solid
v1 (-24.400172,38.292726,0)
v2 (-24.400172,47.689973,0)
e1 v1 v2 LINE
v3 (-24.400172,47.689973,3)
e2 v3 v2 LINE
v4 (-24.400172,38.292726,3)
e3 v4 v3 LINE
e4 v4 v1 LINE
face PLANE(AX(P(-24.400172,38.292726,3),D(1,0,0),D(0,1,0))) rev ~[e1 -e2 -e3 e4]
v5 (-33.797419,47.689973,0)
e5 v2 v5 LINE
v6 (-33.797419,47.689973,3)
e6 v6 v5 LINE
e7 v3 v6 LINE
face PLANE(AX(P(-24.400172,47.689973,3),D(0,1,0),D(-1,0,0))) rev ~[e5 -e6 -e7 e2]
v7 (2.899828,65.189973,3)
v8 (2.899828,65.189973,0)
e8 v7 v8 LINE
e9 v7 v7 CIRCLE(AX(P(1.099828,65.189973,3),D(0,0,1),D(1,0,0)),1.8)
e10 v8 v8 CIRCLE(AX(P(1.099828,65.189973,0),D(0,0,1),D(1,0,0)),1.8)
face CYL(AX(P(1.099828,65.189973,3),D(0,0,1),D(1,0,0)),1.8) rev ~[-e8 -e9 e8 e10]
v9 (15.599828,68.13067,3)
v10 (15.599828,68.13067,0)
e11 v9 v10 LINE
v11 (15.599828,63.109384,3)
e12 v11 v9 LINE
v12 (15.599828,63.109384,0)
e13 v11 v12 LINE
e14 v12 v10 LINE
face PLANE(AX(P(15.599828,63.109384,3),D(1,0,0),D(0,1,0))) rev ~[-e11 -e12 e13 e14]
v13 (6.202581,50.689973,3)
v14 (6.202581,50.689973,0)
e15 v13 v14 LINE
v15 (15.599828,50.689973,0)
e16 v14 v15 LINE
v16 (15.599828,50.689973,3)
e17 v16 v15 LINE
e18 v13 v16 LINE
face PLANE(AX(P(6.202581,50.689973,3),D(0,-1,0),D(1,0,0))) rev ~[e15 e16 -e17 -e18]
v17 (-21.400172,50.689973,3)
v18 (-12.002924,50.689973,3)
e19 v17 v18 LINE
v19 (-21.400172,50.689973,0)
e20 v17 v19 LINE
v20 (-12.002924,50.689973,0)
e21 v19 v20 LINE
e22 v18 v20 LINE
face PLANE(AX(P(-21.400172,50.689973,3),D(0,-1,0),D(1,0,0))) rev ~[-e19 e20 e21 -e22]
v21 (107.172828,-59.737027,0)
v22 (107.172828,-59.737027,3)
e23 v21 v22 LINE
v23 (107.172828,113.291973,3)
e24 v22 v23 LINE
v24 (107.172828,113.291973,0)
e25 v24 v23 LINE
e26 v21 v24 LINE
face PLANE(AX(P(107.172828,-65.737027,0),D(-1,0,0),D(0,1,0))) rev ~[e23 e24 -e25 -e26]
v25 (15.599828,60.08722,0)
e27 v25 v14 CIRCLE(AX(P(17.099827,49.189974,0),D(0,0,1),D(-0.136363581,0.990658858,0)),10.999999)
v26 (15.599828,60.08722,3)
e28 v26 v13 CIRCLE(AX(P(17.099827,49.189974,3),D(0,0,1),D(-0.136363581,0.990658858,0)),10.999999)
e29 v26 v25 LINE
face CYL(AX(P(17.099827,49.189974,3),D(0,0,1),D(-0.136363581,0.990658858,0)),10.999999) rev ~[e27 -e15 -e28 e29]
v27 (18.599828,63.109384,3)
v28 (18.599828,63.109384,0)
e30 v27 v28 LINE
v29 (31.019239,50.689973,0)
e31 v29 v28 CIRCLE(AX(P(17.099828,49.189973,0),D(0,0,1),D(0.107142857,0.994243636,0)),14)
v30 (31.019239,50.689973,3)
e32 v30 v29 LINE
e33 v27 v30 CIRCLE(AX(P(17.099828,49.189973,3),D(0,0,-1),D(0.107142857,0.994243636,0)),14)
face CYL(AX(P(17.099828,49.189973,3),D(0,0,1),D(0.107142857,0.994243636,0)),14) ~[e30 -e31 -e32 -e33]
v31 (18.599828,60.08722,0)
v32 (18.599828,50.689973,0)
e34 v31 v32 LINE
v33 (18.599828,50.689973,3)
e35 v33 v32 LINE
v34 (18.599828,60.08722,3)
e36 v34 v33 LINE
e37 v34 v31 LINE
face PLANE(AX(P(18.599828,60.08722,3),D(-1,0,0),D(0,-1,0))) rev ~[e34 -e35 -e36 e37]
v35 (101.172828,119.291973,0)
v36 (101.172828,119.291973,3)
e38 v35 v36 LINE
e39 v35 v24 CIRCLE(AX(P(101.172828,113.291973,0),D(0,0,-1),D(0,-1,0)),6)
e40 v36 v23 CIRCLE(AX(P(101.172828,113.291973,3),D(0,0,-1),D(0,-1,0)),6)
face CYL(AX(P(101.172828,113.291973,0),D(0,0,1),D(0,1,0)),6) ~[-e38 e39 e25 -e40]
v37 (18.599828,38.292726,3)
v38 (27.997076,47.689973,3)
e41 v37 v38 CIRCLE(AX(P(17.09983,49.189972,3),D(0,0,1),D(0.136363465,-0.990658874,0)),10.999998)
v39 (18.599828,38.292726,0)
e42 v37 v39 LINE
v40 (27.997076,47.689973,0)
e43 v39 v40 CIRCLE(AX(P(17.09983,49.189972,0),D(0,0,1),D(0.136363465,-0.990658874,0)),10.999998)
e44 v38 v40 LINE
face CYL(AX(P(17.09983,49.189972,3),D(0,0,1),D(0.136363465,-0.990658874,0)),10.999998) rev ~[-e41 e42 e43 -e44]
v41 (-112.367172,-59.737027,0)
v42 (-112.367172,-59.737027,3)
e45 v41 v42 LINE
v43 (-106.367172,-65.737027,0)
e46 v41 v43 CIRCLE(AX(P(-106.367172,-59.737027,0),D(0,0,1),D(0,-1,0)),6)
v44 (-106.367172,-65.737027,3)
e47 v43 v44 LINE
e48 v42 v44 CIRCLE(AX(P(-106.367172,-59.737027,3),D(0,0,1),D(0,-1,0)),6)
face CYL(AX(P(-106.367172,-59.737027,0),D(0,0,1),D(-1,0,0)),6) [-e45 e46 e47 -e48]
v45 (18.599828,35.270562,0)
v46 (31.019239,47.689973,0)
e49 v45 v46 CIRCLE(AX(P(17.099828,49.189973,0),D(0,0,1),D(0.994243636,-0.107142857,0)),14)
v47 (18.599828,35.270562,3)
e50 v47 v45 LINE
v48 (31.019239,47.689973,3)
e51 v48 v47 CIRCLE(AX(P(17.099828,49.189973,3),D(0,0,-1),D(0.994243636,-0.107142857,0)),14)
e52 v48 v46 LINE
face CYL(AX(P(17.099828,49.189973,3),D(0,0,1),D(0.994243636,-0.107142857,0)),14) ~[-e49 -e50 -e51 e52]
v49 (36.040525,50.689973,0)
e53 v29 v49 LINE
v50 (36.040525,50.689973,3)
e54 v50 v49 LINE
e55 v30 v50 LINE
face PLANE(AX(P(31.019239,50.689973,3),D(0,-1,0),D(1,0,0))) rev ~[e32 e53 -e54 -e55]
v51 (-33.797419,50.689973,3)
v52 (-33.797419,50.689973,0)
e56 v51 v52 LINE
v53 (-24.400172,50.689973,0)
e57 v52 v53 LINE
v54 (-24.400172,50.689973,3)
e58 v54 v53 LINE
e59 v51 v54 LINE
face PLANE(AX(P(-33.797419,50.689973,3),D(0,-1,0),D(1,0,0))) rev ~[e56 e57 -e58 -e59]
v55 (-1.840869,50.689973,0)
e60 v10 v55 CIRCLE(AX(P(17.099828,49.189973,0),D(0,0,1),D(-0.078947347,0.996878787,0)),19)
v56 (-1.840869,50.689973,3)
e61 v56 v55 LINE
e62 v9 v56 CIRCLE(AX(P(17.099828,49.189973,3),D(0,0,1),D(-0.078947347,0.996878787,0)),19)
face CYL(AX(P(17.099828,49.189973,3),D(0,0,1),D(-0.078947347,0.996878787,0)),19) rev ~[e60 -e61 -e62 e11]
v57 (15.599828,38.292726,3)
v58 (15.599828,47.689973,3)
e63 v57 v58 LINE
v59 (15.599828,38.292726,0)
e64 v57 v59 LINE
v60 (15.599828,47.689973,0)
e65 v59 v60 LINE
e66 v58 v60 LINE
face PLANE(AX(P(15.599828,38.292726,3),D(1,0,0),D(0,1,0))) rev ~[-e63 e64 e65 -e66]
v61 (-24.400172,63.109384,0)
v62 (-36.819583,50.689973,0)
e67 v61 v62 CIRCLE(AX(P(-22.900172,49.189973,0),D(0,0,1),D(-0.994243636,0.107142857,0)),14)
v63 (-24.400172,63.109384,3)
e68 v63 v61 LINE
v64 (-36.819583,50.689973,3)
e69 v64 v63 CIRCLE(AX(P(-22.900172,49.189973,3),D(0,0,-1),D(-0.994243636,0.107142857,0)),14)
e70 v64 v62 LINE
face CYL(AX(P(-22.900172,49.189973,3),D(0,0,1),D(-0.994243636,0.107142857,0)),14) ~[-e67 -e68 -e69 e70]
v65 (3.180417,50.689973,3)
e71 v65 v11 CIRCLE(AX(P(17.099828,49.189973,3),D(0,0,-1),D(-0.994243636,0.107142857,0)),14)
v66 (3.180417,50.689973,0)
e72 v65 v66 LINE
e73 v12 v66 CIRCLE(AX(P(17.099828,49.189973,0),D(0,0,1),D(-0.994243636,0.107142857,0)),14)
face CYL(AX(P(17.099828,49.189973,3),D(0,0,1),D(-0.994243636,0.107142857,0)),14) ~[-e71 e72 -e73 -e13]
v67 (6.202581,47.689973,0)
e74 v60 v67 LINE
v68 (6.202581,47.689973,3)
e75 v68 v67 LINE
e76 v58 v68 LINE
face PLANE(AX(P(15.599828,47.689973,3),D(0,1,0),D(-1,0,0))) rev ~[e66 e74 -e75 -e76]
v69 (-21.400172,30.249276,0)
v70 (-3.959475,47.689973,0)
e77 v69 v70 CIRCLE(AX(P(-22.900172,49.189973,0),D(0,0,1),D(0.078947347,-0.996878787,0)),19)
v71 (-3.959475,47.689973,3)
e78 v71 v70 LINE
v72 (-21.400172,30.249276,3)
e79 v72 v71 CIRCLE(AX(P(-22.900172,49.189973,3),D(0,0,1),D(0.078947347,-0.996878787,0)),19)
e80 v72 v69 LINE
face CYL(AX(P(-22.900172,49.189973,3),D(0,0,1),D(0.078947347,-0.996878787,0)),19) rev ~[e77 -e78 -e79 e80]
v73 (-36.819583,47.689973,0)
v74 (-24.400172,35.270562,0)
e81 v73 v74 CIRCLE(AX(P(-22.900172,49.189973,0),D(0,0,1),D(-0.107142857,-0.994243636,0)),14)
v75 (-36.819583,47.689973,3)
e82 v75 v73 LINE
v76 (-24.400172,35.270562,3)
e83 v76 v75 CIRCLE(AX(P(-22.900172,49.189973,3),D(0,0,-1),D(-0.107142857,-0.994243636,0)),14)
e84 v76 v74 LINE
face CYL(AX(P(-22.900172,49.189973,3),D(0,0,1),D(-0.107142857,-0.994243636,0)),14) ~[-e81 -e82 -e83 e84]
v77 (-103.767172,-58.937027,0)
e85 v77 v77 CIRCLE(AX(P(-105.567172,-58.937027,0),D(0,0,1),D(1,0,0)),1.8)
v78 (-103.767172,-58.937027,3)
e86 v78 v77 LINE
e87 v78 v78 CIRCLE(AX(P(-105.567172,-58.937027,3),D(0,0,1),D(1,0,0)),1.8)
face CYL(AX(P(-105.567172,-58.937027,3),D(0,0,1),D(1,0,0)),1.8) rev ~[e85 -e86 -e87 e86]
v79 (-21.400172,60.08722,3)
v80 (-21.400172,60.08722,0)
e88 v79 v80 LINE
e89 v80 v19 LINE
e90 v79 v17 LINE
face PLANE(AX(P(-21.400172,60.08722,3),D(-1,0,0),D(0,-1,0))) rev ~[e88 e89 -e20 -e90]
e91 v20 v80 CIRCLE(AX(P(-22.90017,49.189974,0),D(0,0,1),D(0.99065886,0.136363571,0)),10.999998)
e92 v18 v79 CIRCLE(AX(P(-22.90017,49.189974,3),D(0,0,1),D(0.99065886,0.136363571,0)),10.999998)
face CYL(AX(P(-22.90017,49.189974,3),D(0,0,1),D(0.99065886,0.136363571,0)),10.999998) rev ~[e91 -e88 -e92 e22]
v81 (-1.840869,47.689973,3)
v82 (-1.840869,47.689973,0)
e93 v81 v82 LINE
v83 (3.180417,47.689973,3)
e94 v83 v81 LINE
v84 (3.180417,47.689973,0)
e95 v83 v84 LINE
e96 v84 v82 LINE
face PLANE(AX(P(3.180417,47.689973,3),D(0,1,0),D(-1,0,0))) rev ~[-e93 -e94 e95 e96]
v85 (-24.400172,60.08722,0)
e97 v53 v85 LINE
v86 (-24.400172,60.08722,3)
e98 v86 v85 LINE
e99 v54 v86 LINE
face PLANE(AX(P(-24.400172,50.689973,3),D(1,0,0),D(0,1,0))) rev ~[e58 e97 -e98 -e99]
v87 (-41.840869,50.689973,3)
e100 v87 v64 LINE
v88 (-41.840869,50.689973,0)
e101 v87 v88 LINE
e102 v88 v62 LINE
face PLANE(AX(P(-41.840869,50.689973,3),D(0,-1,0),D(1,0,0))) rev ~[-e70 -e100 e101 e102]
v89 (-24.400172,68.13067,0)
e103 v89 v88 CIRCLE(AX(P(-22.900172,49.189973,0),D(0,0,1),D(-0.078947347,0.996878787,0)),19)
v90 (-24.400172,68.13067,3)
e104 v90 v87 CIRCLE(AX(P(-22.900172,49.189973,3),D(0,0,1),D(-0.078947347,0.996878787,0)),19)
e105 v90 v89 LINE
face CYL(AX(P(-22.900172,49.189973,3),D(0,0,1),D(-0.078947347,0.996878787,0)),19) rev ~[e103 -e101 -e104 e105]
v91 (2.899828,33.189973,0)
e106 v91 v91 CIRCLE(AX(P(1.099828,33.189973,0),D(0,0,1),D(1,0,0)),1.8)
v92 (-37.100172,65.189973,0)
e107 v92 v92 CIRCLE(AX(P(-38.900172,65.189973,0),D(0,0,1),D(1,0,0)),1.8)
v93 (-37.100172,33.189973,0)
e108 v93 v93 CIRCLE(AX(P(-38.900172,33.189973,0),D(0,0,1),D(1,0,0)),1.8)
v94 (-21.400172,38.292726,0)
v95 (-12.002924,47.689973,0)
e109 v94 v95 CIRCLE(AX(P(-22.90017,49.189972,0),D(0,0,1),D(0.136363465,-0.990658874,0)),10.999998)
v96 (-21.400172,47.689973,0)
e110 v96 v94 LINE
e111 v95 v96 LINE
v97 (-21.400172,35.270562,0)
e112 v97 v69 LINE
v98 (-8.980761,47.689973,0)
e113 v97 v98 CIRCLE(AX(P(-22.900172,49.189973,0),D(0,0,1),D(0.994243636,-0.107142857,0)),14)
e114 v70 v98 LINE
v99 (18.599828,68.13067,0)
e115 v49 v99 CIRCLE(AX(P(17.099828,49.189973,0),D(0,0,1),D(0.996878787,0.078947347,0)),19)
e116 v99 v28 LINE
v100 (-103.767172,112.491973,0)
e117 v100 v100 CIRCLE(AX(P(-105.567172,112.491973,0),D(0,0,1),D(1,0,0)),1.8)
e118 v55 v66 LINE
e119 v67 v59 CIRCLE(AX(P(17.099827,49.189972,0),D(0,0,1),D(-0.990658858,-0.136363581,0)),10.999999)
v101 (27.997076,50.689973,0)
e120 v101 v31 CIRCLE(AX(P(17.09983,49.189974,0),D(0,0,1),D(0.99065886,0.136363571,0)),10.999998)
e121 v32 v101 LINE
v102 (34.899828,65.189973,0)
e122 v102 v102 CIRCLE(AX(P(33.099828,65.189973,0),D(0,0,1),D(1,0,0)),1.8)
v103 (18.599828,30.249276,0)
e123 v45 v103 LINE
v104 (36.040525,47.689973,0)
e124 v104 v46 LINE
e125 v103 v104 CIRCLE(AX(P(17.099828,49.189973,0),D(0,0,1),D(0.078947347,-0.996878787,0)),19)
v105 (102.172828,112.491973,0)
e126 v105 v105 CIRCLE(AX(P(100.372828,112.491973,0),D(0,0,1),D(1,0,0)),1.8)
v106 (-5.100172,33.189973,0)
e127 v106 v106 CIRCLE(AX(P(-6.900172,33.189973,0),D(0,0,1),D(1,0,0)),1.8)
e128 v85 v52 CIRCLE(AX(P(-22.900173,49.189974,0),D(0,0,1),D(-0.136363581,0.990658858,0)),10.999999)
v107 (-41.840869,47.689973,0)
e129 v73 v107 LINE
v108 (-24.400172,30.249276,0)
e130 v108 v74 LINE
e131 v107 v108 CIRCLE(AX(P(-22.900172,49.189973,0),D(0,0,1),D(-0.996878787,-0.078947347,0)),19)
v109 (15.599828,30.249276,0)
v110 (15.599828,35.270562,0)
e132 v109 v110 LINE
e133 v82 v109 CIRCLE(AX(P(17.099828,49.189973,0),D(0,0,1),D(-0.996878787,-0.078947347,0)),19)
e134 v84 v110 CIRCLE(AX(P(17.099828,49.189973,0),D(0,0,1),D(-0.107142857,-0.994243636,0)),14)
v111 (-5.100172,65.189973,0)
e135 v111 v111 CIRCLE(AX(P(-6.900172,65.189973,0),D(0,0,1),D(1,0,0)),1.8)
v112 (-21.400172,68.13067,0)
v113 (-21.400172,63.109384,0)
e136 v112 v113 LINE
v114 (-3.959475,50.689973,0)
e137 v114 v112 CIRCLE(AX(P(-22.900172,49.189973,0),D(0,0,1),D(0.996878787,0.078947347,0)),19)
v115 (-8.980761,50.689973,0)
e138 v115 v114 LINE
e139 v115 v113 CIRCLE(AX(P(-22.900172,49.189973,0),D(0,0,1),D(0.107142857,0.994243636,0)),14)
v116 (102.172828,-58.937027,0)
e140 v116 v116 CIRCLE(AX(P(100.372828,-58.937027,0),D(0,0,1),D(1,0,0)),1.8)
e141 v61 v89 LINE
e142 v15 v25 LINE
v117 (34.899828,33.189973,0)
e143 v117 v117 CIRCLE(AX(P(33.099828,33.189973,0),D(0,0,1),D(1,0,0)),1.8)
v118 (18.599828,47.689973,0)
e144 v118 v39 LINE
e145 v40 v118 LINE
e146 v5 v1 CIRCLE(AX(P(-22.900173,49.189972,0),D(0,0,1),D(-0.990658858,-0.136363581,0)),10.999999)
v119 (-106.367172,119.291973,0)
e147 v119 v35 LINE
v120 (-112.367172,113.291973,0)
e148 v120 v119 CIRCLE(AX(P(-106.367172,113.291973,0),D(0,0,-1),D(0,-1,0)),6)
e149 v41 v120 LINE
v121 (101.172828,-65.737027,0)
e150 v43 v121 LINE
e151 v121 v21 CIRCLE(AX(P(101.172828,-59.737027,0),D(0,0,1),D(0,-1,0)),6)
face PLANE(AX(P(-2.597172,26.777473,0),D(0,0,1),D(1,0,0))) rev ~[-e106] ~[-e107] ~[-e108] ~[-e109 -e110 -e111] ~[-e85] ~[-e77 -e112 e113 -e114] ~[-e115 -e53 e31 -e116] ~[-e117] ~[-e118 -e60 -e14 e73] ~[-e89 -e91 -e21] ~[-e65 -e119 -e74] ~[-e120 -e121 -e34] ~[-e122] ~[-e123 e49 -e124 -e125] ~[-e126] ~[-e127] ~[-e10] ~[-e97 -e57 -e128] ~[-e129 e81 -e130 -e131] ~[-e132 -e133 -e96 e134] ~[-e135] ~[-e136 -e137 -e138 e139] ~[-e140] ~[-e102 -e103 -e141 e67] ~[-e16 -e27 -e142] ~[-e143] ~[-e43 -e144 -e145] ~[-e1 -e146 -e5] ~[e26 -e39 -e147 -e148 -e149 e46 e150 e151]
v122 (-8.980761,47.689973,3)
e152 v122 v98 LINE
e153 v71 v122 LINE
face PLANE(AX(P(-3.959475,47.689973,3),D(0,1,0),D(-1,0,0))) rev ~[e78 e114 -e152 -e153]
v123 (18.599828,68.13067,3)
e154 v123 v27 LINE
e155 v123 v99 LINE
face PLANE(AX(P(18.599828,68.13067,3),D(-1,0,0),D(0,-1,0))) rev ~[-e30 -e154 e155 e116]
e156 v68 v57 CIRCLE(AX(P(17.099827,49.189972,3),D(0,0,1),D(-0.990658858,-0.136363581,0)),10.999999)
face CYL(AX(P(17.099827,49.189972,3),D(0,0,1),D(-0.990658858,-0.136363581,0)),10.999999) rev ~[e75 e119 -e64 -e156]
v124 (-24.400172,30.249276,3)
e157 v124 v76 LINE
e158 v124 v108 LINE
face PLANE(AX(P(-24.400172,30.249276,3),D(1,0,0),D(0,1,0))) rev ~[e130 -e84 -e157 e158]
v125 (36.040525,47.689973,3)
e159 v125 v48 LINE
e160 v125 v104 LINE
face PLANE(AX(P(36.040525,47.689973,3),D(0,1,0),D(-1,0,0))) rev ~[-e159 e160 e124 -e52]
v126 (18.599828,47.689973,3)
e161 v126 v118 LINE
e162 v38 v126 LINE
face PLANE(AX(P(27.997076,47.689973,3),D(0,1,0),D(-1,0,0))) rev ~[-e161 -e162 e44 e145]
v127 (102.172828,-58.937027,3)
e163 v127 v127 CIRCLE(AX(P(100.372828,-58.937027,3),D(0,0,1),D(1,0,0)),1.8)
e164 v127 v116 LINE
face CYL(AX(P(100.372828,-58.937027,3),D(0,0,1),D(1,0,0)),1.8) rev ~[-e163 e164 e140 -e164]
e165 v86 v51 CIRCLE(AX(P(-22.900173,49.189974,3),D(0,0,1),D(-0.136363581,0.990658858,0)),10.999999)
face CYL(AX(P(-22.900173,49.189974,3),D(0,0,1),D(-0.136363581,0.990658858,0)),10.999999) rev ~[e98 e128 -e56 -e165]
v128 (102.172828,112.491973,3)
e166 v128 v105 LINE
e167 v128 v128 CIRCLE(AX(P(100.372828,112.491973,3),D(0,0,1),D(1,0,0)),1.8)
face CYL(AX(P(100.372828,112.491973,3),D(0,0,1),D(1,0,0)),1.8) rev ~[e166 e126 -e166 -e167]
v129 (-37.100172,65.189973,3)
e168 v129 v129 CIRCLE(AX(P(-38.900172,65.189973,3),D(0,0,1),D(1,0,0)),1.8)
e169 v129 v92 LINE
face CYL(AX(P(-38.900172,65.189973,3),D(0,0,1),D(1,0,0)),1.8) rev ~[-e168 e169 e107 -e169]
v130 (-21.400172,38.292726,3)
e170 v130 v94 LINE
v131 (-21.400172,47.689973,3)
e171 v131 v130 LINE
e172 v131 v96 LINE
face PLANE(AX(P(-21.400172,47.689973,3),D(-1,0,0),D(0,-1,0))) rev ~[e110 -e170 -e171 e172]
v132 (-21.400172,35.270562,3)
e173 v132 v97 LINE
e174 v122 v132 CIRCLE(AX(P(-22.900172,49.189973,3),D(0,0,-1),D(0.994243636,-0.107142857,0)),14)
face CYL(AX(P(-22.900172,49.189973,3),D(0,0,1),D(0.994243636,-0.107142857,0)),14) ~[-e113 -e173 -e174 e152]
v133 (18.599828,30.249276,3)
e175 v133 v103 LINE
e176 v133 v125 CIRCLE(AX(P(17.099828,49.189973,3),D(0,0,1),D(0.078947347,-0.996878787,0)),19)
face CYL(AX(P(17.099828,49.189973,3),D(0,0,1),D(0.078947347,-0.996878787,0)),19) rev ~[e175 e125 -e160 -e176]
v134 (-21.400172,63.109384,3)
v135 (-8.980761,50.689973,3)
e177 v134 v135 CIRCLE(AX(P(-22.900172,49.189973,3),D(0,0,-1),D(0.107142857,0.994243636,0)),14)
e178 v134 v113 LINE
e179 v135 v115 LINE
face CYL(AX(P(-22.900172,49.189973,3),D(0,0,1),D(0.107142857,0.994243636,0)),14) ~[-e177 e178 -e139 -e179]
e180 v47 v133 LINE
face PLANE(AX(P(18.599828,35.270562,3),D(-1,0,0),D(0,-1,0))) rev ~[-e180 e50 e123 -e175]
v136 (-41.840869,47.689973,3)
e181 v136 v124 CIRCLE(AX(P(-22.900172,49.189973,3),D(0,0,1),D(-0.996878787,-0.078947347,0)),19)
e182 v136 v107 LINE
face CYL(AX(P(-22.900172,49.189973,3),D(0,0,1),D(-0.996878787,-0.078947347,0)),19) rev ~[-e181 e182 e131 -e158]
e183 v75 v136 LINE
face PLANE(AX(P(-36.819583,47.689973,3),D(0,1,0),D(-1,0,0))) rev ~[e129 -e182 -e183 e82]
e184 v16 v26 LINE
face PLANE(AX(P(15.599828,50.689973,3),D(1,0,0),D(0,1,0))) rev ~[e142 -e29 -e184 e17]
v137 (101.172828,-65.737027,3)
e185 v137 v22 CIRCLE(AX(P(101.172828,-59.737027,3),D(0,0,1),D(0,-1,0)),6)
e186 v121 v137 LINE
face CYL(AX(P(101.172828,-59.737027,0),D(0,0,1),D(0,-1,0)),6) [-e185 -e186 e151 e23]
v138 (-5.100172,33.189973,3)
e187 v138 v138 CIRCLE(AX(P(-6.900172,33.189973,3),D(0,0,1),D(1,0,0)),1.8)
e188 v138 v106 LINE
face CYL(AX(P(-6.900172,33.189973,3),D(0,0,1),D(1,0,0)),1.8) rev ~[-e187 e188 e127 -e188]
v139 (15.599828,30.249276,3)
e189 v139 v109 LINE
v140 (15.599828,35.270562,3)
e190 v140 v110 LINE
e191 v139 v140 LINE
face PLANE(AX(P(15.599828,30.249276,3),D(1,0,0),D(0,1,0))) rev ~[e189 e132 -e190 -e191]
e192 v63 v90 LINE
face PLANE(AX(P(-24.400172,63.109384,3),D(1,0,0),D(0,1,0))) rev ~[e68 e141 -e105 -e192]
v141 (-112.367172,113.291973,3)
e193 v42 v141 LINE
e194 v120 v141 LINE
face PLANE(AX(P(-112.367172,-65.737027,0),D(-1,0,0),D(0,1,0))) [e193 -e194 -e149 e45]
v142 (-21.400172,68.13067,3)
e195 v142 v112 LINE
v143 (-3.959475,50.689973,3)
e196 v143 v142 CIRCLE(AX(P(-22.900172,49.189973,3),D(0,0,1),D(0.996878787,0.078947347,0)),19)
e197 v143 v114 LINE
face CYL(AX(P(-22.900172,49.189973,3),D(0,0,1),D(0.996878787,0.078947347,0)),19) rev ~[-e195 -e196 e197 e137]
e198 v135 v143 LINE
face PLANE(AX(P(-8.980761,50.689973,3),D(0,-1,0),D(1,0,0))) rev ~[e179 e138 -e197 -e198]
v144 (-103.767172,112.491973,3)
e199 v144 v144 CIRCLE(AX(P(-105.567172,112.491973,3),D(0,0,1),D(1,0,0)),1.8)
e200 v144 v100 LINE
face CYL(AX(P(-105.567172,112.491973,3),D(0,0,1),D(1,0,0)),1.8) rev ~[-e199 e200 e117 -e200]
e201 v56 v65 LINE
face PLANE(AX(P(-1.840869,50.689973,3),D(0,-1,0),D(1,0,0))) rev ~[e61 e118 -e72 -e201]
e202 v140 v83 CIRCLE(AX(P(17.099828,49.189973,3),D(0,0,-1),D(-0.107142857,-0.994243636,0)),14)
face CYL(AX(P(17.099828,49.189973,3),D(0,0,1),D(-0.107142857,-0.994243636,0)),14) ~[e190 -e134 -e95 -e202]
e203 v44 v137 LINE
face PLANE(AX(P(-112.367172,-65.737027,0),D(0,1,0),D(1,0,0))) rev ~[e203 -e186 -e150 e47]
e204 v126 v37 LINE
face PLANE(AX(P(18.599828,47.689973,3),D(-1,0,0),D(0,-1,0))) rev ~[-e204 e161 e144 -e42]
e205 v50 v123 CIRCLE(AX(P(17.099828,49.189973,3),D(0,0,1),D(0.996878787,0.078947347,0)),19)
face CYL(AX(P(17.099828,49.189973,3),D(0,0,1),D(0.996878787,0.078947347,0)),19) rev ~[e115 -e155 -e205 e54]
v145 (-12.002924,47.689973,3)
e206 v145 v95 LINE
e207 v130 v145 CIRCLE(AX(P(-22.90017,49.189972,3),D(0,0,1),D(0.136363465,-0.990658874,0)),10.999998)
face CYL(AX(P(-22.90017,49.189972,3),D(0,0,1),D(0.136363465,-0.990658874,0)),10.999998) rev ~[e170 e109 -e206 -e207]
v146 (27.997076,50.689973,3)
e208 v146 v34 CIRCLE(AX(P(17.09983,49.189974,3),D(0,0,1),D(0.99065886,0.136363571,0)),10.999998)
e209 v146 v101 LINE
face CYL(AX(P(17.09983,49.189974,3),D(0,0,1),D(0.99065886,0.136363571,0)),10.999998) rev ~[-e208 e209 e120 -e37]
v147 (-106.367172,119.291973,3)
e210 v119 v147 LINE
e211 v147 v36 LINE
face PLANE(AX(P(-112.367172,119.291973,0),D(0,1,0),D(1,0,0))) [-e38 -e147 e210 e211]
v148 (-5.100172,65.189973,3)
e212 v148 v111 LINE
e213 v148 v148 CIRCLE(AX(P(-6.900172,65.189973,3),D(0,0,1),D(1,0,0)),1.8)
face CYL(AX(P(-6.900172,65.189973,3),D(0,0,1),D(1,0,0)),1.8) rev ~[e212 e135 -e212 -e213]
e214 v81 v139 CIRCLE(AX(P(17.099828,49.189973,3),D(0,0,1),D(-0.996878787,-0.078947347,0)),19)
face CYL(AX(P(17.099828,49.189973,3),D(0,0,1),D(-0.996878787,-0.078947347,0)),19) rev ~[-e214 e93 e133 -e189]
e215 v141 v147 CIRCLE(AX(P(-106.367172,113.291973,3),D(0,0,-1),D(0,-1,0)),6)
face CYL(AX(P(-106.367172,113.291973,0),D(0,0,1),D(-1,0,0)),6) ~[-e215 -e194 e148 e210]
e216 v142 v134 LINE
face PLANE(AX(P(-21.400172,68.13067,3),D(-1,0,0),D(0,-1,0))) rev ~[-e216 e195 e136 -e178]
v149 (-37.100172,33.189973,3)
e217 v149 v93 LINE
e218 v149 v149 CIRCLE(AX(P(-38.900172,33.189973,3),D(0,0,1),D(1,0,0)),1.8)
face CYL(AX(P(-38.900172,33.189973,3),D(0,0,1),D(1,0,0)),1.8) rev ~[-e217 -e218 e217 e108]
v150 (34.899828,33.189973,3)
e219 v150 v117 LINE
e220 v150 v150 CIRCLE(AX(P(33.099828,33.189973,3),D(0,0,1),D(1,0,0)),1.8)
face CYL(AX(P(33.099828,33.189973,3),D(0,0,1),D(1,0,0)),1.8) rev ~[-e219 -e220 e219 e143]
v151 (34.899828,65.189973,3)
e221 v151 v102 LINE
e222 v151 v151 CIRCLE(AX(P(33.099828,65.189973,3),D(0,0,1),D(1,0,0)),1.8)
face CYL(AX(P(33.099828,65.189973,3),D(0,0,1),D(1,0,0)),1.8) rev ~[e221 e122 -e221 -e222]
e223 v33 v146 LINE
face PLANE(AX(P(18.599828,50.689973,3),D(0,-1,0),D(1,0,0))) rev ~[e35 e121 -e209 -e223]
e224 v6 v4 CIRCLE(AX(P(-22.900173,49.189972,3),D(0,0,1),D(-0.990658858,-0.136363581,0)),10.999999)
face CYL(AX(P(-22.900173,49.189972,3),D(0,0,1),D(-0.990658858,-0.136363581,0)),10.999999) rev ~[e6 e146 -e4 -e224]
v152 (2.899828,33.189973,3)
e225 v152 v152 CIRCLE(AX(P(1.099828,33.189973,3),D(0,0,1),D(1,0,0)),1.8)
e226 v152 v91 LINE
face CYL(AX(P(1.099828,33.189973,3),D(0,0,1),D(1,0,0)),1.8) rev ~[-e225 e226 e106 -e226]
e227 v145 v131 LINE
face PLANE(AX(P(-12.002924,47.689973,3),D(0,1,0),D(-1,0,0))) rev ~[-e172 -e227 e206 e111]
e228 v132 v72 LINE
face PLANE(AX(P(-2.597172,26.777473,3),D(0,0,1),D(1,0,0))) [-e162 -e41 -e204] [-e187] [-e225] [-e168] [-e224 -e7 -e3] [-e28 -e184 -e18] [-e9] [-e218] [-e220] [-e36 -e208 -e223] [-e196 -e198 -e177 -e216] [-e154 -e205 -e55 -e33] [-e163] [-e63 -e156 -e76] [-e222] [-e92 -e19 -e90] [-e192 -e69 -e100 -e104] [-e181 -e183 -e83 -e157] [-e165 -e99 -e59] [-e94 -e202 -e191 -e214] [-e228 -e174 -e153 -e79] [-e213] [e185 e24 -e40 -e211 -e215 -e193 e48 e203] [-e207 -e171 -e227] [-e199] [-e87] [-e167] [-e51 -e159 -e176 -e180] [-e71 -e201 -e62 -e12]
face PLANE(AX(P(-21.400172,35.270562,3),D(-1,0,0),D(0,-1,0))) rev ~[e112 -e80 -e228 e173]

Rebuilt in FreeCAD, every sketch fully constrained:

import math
import FreeCAD as App
import Part
import Sketcher
Q = App.Units.Quantity


def edges_at(feature, points):
    """Names of the edges that pass closest to the given points."""
    edges = feature.Shape.Edges
    near = lambda p: min(range(len(edges)), key=lambda i: edges[i].distToShape(Part.Vertex(*p))[0])
    return sorted({f"Edge{near(p) + 1}" for p in points})


def add_polygon(sketch, points):
    """Adds a closed chain of lines whose ends are joined by coincident constraints."""
    first, n = sketch.GeometryCount, len(points)
    for a, b in zip(points, points[1:] + points[:1]):
        sketch.addGeometry(Part.LineSegment(App.Vector(*a, 0), App.Vector(*b, 0)), False)
    for i in range(n):
        sketch.addConstraint(Sketcher.Constraint("Coincident", first + i, 2, first + (i + 1) % n, 1))

doc = App.newDocument("Part")
params = doc.addObject("Spreadsheet::Sheet", "Params")
for row, (alias, value) in enumerate([
    ("sketch1_width", "219.54 mm"),
    ("pad1_length", "3 mm"),
    ("sketch2_radius", "19 mm"),
    ("sketch2_radius2", "14 mm"),
    ("sketch2_radius3", "10.999998 mm"),
    ("sketch2_diameter", "3.6 mm"),
    ("pocket1_length", "25 mm"),
    ("fillet_radius", "6 mm"),
], start=1):
    params.set(f"A{row}", alias)
    params.set(f"B{row}", "=" + value)
    params.setAlias(f"B{row}", alias)

body = doc.addObject("PartDesign::Body", "Body")

sketch1 = body.newObject("Sketcher::SketchObject", "Sketch")
sketch1.AttachmentSupport = (doc.getObject("XY_Plane"), [""])
sketch1.MapMode = "FlatFace"
add_polygon(sketch1, [(-112, 119), (-112, -66), (107, -66), (107, 119)])
sketch1.addConstraint(Sketcher.Constraint("Vertical", 0))
sketch1.addConstraint(Sketcher.Constraint("Horizontal", 1))
sketch1.addConstraint(Sketcher.Constraint("Vertical", 2))
sketch1.addConstraint(Sketcher.Constraint("Horizontal", 3))
sketch1.addConstraint(Sketcher.Constraint("DistanceX", 1, 1, 1, 2, Q("219.54 mm")))
sketch1.addConstraint(Sketcher.Constraint("DistanceY", 0, 2, 0, 1, Q("185.029 mm")))
sketch1.addConstraint(Sketcher.Constraint("DistanceX", 0, 2, -1, 1, Q("112.367172 mm")))
sketch1.addConstraint(Sketcher.Constraint("DistanceY", 0, 2, -1, 1, Q("65.737027 mm")))
sketch1.setExpression("Constraints[8]", "Params.sketch1_width")
pad1 = body.newObject("PartDesign::Pad", "Pad")
pad1.Profile = sketch1
pad1.setExpression("Length", "Params.pad1_length")

sketch2 = body.newObject("Sketcher::SketchObject", "Sketch001")
sketch2.AttachmentSupport = (doc.getObject("XY_Plane"), [""])
sketch2.MapMode = "FlatFace"
sketch2.AttachmentOffset = App.Placement(App.Vector(0, 0, 3), App.Rotation())
sketch2.addGeometry(Part.LineSegment(App.Vector(-24.4, 63.1, 0), App.Vector(-24.4, 68.1, 0)), False)
sketch2.addGeometry(Part.ArcOfCircle(Part.Circle(App.Vector(-22.9, 49.2, 0), App.Vector(0, 0, 1), 19), math.radians(95), math.radians(175)), False)
sketch2.addGeometry(Part.LineSegment(App.Vector(-41.8, 50.7, 0), App.Vector(-36.8, 50.7, 0)), False)
sketch2.addGeometry(Part.ArcOfCircle(Part.Circle(App.Vector(-22.9, 49.2, 0), App.Vector(0, 0, 1), 14), math.radians(96), math.radians(174)), False)
sketch2.addGeometry(Part.ArcOfCircle(Part.Circle(App.Vector(-22.9, 49.2, 0), App.Vector(0, 0, 1), 19), math.radians(-175), math.radians(-95)), False)
sketch2.addGeometry(Part.LineSegment(App.Vector(-24.4, 30.2, 0), App.Vector(-24.4, 35.3, 0)), False)
sketch2.addGeometry(Part.ArcOfCircle(Part.Circle(App.Vector(-22.9, 49.2, 0), App.Vector(0, 0, 1), 14), math.radians(-174), math.radians(-96)), False)
sketch2.addGeometry(Part.LineSegment(App.Vector(-36.8, 47.7, 0), App.Vector(-41.8, 47.7, 0)), False)
sketch2.addGeometry(Part.ArcOfCircle(Part.Circle(App.Vector(-22.9, 49.2, 0), App.Vector(0, 0, 1), 19), math.radians(-85), math.radians(-5)), False)
sketch2.addGeometry(Part.LineSegment(App.Vector(-4, 47.7, 0), App.Vector(-9, 47.7, 0)), False)
sketch2.addGeometry(Part.ArcOfCircle(Part.Circle(App.Vector(-22.9, 49.2, 0), App.Vector(0, 0, 1), 14), math.radians(-84), math.radians(-6)), False)
sketch2.addGeometry(Part.LineSegment(App.Vector(-21.4, 35.3, 0), App.Vector(-21.4, 30.2, 0)), False)
sketch2.addGeometry(Part.LineSegment(App.Vector(-12, 47.7, 0), App.Vector(-21.4, 47.7, 0)), False)
sketch2.addGeometry(Part.LineSegment(App.Vector(-21.4, 47.7, 0), App.Vector(-21.4, 38.3, 0)), False)
sketch2.addGeometry(Part.ArcOfCircle(Part.Circle(App.Vector(-22.9, 49.2, 0), App.Vector(0, 0, 1), 11), math.radians(-82), math.radians(-8)), False)
sketch2.addGeometry(Part.LineSegment(App.Vector(-24.4, 47.7, 0), App.Vector(-33.8, 47.7, 0)), False)
sketch2.addGeometry(Part.ArcOfCircle(Part.Circle(App.Vector(-22.9, 49.2, 0), App.Vector(0, 0, 1), 11), math.radians(-172), math.radians(-98)), False)
sketch2.addGeometry(Part.LineSegment(App.Vector(-24.4, 38.3, 0), App.Vector(-24.4, 47.7, 0)), False)
sketch2.addGeometry(Part.LineSegment(App.Vector(-33.8, 50.7, 0), App.Vector(-24.4, 50.7, 0)), False)
sketch2.addGeometry(Part.LineSegment(App.Vector(-24.4, 50.7, 0), App.Vector(-24.4, 60.1, 0)), False)
sketch2.addGeometry(Part.ArcOfCircle(Part.Circle(App.Vector(-22.9, 49.2, 0), App.Vector(0, 0, 1), 11), math.radians(98), math.radians(172)), False)
sketch2.addGeometry(Part.LineSegment(App.Vector(-9, 50.7, 0), App.Vector(-4, 50.7, 0)), False)
sketch2.addGeometry(Part.ArcOfCircle(Part.Circle(App.Vector(-22.9, 49.2, 0), App.Vector(0, 0, 1), 19), math.radians(5), math.radians(85)), False)
sketch2.addGeometry(Part.LineSegment(App.Vector(-21.4, 68.1, 0), App.Vector(-21.4, 63.1, 0)), False)
sketch2.addGeometry(Part.ArcOfCircle(Part.Circle(App.Vector(-22.9, 49.2, 0), App.Vector(0, 0, 1), 14), math.radians(6), math.radians(84)), False)
sketch2.addGeometry(Part.LineSegment(App.Vector(15.6, 63.1, 0), App.Vector(15.6, 68.1, 0)), False)
sketch2.addGeometry(Part.ArcOfCircle(Part.Circle(App.Vector(17.1, 49.2, 0), App.Vector(0, 0, 1), 19), math.radians(95), math.radians(175)), False)
sketch2.addGeometry(Part.LineSegment(App.Vector(-1.8, 50.7, 0), App.Vector(3.2, 50.7, 0)), False)
sketch2.addGeometry(Part.ArcOfCircle(Part.Circle(App.Vector(17.1, 49.2, 0), App.Vector(0, 0, 1), 14), math.radians(96), math.radians(174)), False)
sketch2.addGeometry(Part.LineSegment(App.Vector(31, 50.7, 0), App.Vector(36, 50.7, 0)), False)
sketch2.addGeometry(Part.ArcOfCircle(Part.Circle(App.Vector(17.1, 49.2, 0), App.Vector(0, 0, 1), 19), math.radians(5), math.radians(85)), False)
sketch2.addGeometry(Part.LineSegment(App.Vector(18.6, 68.1, 0), App.Vector(18.6, 63.1, 0)), False)
sketch2.addGeometry(Part.ArcOfCircle(Part.Circle(App.Vector(17.1, 49.2, 0), App.Vector(0, 0, 1), 14), math.radians(6), math.radians(84)), False)
sketch2.addGeometry(Part.LineSegment(App.Vector(18.6, 50.7, 0), App.Vector(28, 50.7, 0)), False)
sketch2.addGeometry(Part.ArcOfCircle(Part.Circle(App.Vector(17.1, 49.2, 0), App.Vector(0, 0, 1), 11), math.radians(8), math.radians(82)), False)
sketch2.addGeometry(Part.LineSegment(App.Vector(18.6, 60.1, 0), App.Vector(18.6, 50.7, 0)), False)
sketch2.addGeometry(Part.LineSegment(App.Vector(6.2, 50.7, 0), App.Vector(15.6, 50.7, 0)), False)
sketch2.addGeometry(Part.LineSegment(App.Vector(15.6, 50.7, 0), App.Vector(15.6, 60.1, 0)), False)
sketch2.addGeometry(Part.ArcOfCircle(Part.Circle(App.Vector(17.1, 49.2, 0), App.Vector(0, 0, 1), 11), math.radians(98), math.radians(172)), False)
sketch2.addGeometry(Part.LineSegment(App.Vector(15.6, 47.7, 0), App.Vector(6.2, 47.7, 0)), False)
sketch2.addGeometry(Part.ArcOfCircle(Part.Circle(App.Vector(17.1, 49.2, 0), App.Vector(0, 0, 1), 11), math.radians(-172), math.radians(-98)), False)
sketch2.addGeometry(Part.LineSegment(App.Vector(15.6, 38.3, 0), App.Vector(15.6, 47.7, 0)), False)
sketch2.addGeometry(Part.LineSegment(App.Vector(28, 47.7, 0), App.Vector(18.6, 47.7, 0)), False)
sketch2.addGeometry(Part.LineSegment(App.Vector(18.6, 47.7, 0), App.Vector(18.6, 38.3, 0)), False)
sketch2.addGeometry(Part.ArcOfCircle(Part.Circle(App.Vector(17.1, 49.2, 0), App.Vector(0, 0, 1), 11), math.radians(-82), math.radians(-8)), False)
sketch2.addGeometry(Part.ArcOfCircle(Part.Circle(App.Vector(17.1, 49.2, 0), App.Vector(0, 0, 1), 19), math.radians(-175), math.radians(-95)), False)
sketch2.addGeometry(Part.LineSegment(App.Vector(15.6, 30.2, 0), App.Vector(15.6, 35.3, 0)), False)
sketch2.addGeometry(Part.ArcOfCircle(Part.Circle(App.Vector(17.1, 49.2, 0), App.Vector(0, 0, 1), 14), math.radians(-174), math.radians(-96)), False)
sketch2.addGeometry(Part.LineSegment(App.Vector(3.2, 47.7, 0), App.Vector(-1.8, 47.7, 0)), False)
sketch2.addGeometry(Part.ArcOfCircle(Part.Circle(App.Vector(17.1, 49.2, 0), App.Vector(0, 0, 1), 19), math.radians(-85), math.radians(-5)), False)
sketch2.addGeometry(Part.LineSegment(App.Vector(36, 47.7, 0), App.Vector(31, 47.7, 0)), False)
sketch2.addGeometry(Part.ArcOfCircle(Part.Circle(App.Vector(17.1, 49.2, 0), App.Vector(0, 0, 1), 14), math.radians(-84), math.radians(-6)), False)
sketch2.addGeometry(Part.LineSegment(App.Vector(18.6, 35.3, 0), App.Vector(18.6, 30.2, 0)), False)
sketch2.addGeometry(Part.LineSegment(App.Vector(-21.4, 60.1, 0), App.Vector(-21.4, 50.7, 0)), False)
sketch2.addGeometry(Part.LineSegment(App.Vector(-21.4, 50.7, 0), App.Vector(-12, 50.7, 0)), False)
sketch2.addGeometry(Part.ArcOfCircle(Part.Circle(App.Vector(-22.9, 49.2, 0), App.Vector(0, 0, 1), 11), math.radians(8), math.radians(82)), False)
sketch2.addGeometry(Part.Circle(App.Vector(-38.9, 65.2, 0), App.Vector(0, 0, 1), 1.8), False)
sketch2.addGeometry(Part.Circle(App.Vector(-6.9, 65.2, 0), App.Vector(0, 0, 1), 1.8), False)
sketch2.addGeometry(Part.Circle(App.Vector(1.1, 65.2, 0), App.Vector(0, 0, 1), 1.8), False)
sketch2.addGeometry(Part.Circle(App.Vector(33.1, 65.2, 0), App.Vector(0, 0, 1), 1.8), False)
sketch2.addGeometry(Part.Circle(App.Vector(33.1, 33.2, 0), App.Vector(0, 0, 1), 1.8), False)
sketch2.addGeometry(Part.Circle(App.Vector(1.1, 33.2, 0), App.Vector(0, 0, 1), 1.8), False)
sketch2.addGeometry(Part.Circle(App.Vector(-6.9, 33.2, 0), App.Vector(0, 0, 1), 1.8), False)
sketch2.addGeometry(Part.Circle(App.Vector(-38.9, 33.2, 0), App.Vector(0, 0, 1), 1.8), False)
sketch2.addGeometry(Part.Circle(App.Vector(-105.6, -58.9, 0), App.Vector(0, 0, 1), 1.8), False)
sketch2.addGeometry(Part.Circle(App.Vector(100.4, -58.9, 0), App.Vector(0, 0, 1), 1.8), False)
sketch2.addGeometry(Part.Circle(App.Vector(100.4, 112.5, 0), App.Vector(0, 0, 1), 1.8), False)
sketch2.addGeometry(Part.Circle(App.Vector(-105.6, 112.5, 0), App.Vector(0, 0, 1), 1.8), False)
sketch2.addConstraint(Sketcher.Constraint("Coincident", 0, 2, 1, 1))
sketch2.addConstraint(Sketcher.Constraint("Coincident", 1, 2, 2, 1))
sketch2.addConstraint(Sketcher.Constraint("Coincident", 2, 2, 3, 2))
sketch2.addConstraint(Sketcher.Constraint("Coincident", 3, 1, 0, 1))
sketch2.addConstraint(Sketcher.Constraint("Coincident", 4, 2, 5, 1))
sketch2.addConstraint(Sketcher.Constraint("Coincident", 5, 2, 6, 2))
sketch2.addConstraint(Sketcher.Constraint("Coincident", 6, 1, 7, 1))
sketch2.addConstraint(Sketcher.Constraint("Coincident", 7, 2, 4, 1))
sketch2.addConstraint(Sketcher.Constraint("Coincident", 8, 2, 9, 1))
sketch2.addConstraint(Sketcher.Constraint("Coincident", 9, 2, 10, 2))
sketch2.addConstraint(Sketcher.Constraint("Coincident", 10, 1, 11, 1))
sketch2.addConstraint(Sketcher.Constraint("Coincident", 11, 2, 8, 1))
sketch2.addConstraint(Sketcher.Constraint("Coincident", 12, 2, 13, 1))
sketch2.addConstraint(Sketcher.Constraint("Coincident", 13, 2, 14, 1))
sketch2.addConstraint(Sketcher.Constraint("Coincident", 14, 2, 12, 1))
sketch2.addConstraint(Sketcher.Constraint("Coincident", 15, 2, 16, 1))
sketch2.addConstraint(Sketcher.Constraint("Coincident", 16, 2, 17, 1))
sketch2.addConstraint(Sketcher.Constraint("Coincident", 17, 2, 15, 1))
sketch2.addConstraint(Sketcher.Constraint("Coincident", 18, 2, 19, 1))
sketch2.addConstraint(Sketcher.Constraint("Coincident", 19, 2, 20, 1))
sketch2.addConstraint(Sketcher.Constraint("Coincident", 20, 2, 18, 1))
sketch2.addConstraint(Sketcher.Constraint("Coincident", 21, 2, 22, 1))
sketch2.addConstraint(Sketcher.Constraint("Coincident", 22, 2, 23, 1))
sketch2.addConstraint(Sketcher.Constraint("Coincident", 23, 2, 24, 2))
sketch2.addConstraint(Sketcher.Constraint("Coincident", 24, 1, 21, 1))
sketch2.addConstraint(Sketcher.Constraint("Coincident", 25, 2, 26, 1))
sketch2.addConstraint(Sketcher.Constraint("Coincident", 26, 2, 27, 1))
sketch2.addConstraint(Sketcher.Constraint("Coincident", 27, 2, 28, 2))
sketch2.addConstraint(Sketcher.Constraint("Coincident", 28, 1, 25, 1))
sketch2.addConstraint(Sketcher.Constraint("Coincident", 29, 2, 30, 1))
sketch2.addConstraint(Sketcher.Constraint("Coincident", 30, 2, 31, 1))
sketch2.addConstraint(Sketcher.Constraint("Coincident", 31, 2, 32, 2))
sketch2.addConstraint(Sketcher.Constraint("Coincident", 32, 1, 29, 1))
sketch2.addConstraint(Sketcher.Constraint("Coincident", 33, 2, 34, 1))
sketch2.addConstraint(Sketcher.Constraint("Coincident", 34, 2, 35, 1))
sketch2.addConstraint(Sketcher.Constraint("Coincident", 35, 2, 33, 1))
sketch2.addConstraint(Sketcher.Constraint("Coincident", 36, 2, 37, 1))
sketch2.addConstraint(Sketcher.Constraint("Coincident", 37, 2, 38, 1))
sketch2.addConstraint(Sketcher.Constraint("Coincident", 38, 2, 36, 1))
sketch2.addConstraint(Sketcher.Constraint("Coincident", 39, 2, 40, 1))
sketch2.addConstraint(Sketcher.Constraint("Coincident", 40, 2, 41, 1))
sketch2.addConstraint(Sketcher.Constraint("Coincident", 41, 2, 39, 1))
sketch2.addConstraint(Sketcher.Constraint("Coincident", 42, 2, 43, 1))
sketch2.addConstraint(Sketcher.Constraint("Coincident", 43, 2, 44, 1))
sketch2.addConstraint(Sketcher.Constraint("Coincident", 44, 2, 42, 1))
sketch2.addConstraint(Sketcher.Constraint("Coincident", 45, 2, 46, 1))
sketch2.addConstraint(Sketcher.Constraint("Coincident", 46, 2, 47, 2))
sketch2.addConstraint(Sketcher.Constraint("Coincident", 47, 1, 48, 1))
sketch2.addConstraint(Sketcher.Constraint("Coincident", 48, 2, 45, 1))
sketch2.addConstraint(Sketcher.Constraint("Coincident", 49, 2, 50, 1))
sketch2.addConstraint(Sketcher.Constraint("Coincident", 50, 2, 51, 2))
sketch2.addConstraint(Sketcher.Constraint("Coincident", 51, 1, 52, 1))
sketch2.addConstraint(Sketcher.Constraint("Coincident", 52, 2, 49, 1))
sketch2.addConstraint(Sketcher.Constraint("Coincident", 53, 2, 54, 1))
sketch2.addConstraint(Sketcher.Constraint("Coincident", 54, 2, 55, 1))
sketch2.addConstraint(Sketcher.Constraint("Coincident", 55, 2, 53, 1))
sketch2.addConstraint(Sketcher.Constraint("Vertical", 0))
sketch2.addConstraint(Sketcher.Constraint("Horizontal", 2))
sketch2.addConstraint(Sketcher.Constraint("Vertical", 5))
sketch2.addConstraint(Sketcher.Constraint("Horizontal", 7))
sketch2.addConstraint(Sketcher.Constraint("Horizontal", 9))
sketch2.addConstraint(Sketcher.Constraint("Vertical", 11))
sketch2.addConstraint(Sketcher.Constraint("Horizontal", 12))
sketch2.addConstraint(Sketcher.Constraint("Vertical", 13))
sketch2.addConstraint(Sketcher.Constraint("Horizontal", 15))
sketch2.addConstraint(Sketcher.Constraint("Vertical", 17))
sketch2.addConstraint(Sketcher.Constraint("Horizontal", 18))
sketch2.addConstraint(Sketcher.Constraint("Vertical", 19))
sketch2.addConstraint(Sketcher.Constraint("Horizontal", 21))
sketch2.addConstraint(Sketcher.Constraint("Vertical", 23))
sketch2.addConstraint(Sketcher.Constraint("Vertical", 25))
sketch2.addConstraint(Sketcher.Constraint("Horizontal", 27))
sketch2.addConstraint(Sketcher.Constraint("Horizontal", 29))
sketch2.addConstraint(Sketcher.Constraint("Vertical", 31))
sketch2.addConstraint(Sketcher.Constraint("Horizontal", 33))
sketch2.addConstraint(Sketcher.Constraint("Vertical", 35))
sketch2.addConstraint(Sketcher.Constraint("Horizontal", 36))
sketch2.addConstraint(Sketcher.Constraint("Vertical", 37))
sketch2.addConstraint(Sketcher.Constraint("Horizontal", 39))
sketch2.addConstraint(Sketcher.Constraint("Vertical", 41))
sketch2.addConstraint(Sketcher.Constraint("Horizontal", 42))
sketch2.addConstraint(Sketcher.Constraint("Vertical", 43))
sketch2.addConstraint(Sketcher.Constraint("Vertical", 46))
sketch2.addConstraint(Sketcher.Constraint("Horizontal", 48))
sketch2.addConstraint(Sketcher.Constraint("Horizontal", 50))
sketch2.addConstraint(Sketcher.Constraint("Vertical", 52))
sketch2.addConstraint(Sketcher.Constraint("Vertical", 53))
sketch2.addConstraint(Sketcher.Constraint("Horizontal", 54))
sketch2.addConstraint(Sketcher.Constraint("Coincident", 3, 3, 1, 3))
sketch2.addConstraint(Sketcher.Constraint("Coincident", 4, 3, 1, 3))
sketch2.addConstraint(Sketcher.Constraint("Coincident", 6, 3, 1, 3))
sketch2.addConstraint(Sketcher.Constraint("Coincident", 8, 3, 1, 3))
sketch2.addConstraint(Sketcher.Constraint("Coincident", 10, 3, 1, 3))
sketch2.addConstraint(Sketcher.Constraint("Coincident", 14, 3, 1, 3))
sketch2.addConstraint(Sketcher.Constraint("Coincident", 16, 3, 1, 3))
sketch2.addConstraint(Sketcher.Constraint("Coincident", 20, 3, 1, 3))
sketch2.addConstraint(Sketcher.Constraint("Coincident", 22, 3, 1, 3))
sketch2.addConstraint(Sketcher.Constraint("Coincident", 24, 3, 1, 3))
sketch2.addConstraint(Sketcher.Constraint("Coincident", 28, 3, 26, 3))
sketch2.addConstraint(Sketcher.Constraint("Coincident", 30, 3, 26, 3))
sketch2.addConstraint(Sketcher.Constraint("Coincident", 32, 3, 26, 3))
sketch2.addConstraint(Sketcher.Constraint("Coincident", 34, 3, 26, 3))
sketch2.addConstraint(Sketcher.Constraint("Coincident", 38, 3, 26, 3))
sketch2.addConstraint(Sketcher.Constraint("Coincident", 40, 3, 26, 3))
sketch2.addConstraint(Sketcher.Constraint("Coincident", 44, 3, 26, 3))
sketch2.addConstraint(Sketcher.Constraint("Coincident", 45, 3, 26, 3))
sketch2.addConstraint(Sketcher.Constraint("Coincident", 47, 3, 26, 3))
sketch2.addConstraint(Sketcher.Constraint("Coincident", 49, 3, 26, 3))
sketch2.addConstraint(Sketcher.Constraint("Coincident", 51, 3, 26, 3))
sketch2.addConstraint(Sketcher.Constraint("Coincident", 55, 3, 1, 3))
sketch2.addConstraint(Sketcher.Constraint("Equal", 1, 4))
sketch2.addConstraint(Sketcher.Constraint("Equal", 3, 6))
sketch2.addConstraint(Sketcher.Constraint("Equal", 4, 8))
sketch2.addConstraint(Sketcher.Constraint("Equal", 6, 10))
sketch2.addConstraint(Sketcher.Constraint("Equal", 14, 16))
sketch2.addConstraint(Sketcher.Constraint("Equal", 16, 20))
sketch2.addConstraint(Sketcher.Constraint("Equal", 8, 22))
sketch2.addConstraint(Sketcher.Constraint("Equal", 10, 24))
sketch2.addConstraint(Sketcher.Constraint("Equal", 22, 26))
sketch2.addConstraint(Sketcher.Constraint("Equal", 24, 28))
sketch2.addConstraint(Sketcher.Constraint("Equal", 26, 30))
sketch2.addConstraint(Sketcher.Constraint("Equal", 28, 32))
sketch2.addConstraint(Sketcher.Constraint("Equal", 20, 34))
sketch2.addConstraint(Sketcher.Constraint("Equal", 34, 38))
sketch2.addConstraint(Sketcher.Constraint("Equal", 38, 40))
sketch2.addConstraint(Sketcher.Constraint("Equal", 40, 44))
sketch2.addConstraint(Sketcher.Constraint("Equal", 30, 45))
sketch2.addConstraint(Sketcher.Constraint("Equal", 32, 47))
sketch2.addConstraint(Sketcher.Constraint("Equal", 45, 49))
sketch2.addConstraint(Sketcher.Constraint("Equal", 47, 51))
sketch2.addConstraint(Sketcher.Constraint("Equal", 44, 55))
sketch2.addConstraint(Sketcher.Constraint("Equal", 56, 57))
sketch2.addConstraint(Sketcher.Constraint("Equal", 57, 58))
sketch2.addConstraint(Sketcher.Constraint("Equal", 58, 59))
sketch2.addConstraint(Sketcher.Constraint("Equal", 59, 60))
sketch2.addConstraint(Sketcher.Constraint("Equal", 60, 61))
sketch2.addConstraint(Sketcher.Constraint("Equal", 61, 62))
sketch2.addConstraint(Sketcher.Constraint("Equal", 62, 63))
sketch2.addConstraint(Sketcher.Constraint("Equal", 63, 64))
sketch2.addConstraint(Sketcher.Constraint("Equal", 64, 65))
sketch2.addConstraint(Sketcher.Constraint("Equal", 65, 66))
sketch2.addConstraint(Sketcher.Constraint("Equal", 66, 67))
sketch2.addConstraint(Sketcher.Constraint("Horizontal", 24, 3, 26, 3))
sketch2.addConstraint(Sketcher.Constraint("Horizontal", 56, 3, 57, 3))
sketch2.addConstraint(Sketcher.Constraint("Horizontal", 57, 3, 58, 3))
sketch2.addConstraint(Sketcher.Constraint("Horizontal", 58, 3, 59, 3))
sketch2.addConstraint(Sketcher.Constraint("Horizontal", 60, 3, 61, 3))
sketch2.addConstraint(Sketcher.Constraint("Horizontal", 61, 3, 62, 3))
sketch2.addConstraint(Sketcher.Constraint("Horizontal", 62, 3, 63, 3))
sketch2.addConstraint(Sketcher.Constraint("Horizontal", 64, 3, 65, 3))
sketch2.addConstraint(Sketcher.Constraint("Horizontal", 66, 3, 67, 3))
sketch2.addConstraint(Sketcher.Constraint("Horizontal", 7, 2, 8, 2))
sketch2.addConstraint(Sketcher.Constraint("Horizontal", 5, 2, 10, 1))
sketch2.addConstraint(Sketcher.Constraint("Horizontal", 9, 2, 12, 2))
sketch2.addConstraint(Sketcher.Constraint("Horizontal", 14, 2, 15, 2))
sketch2.addConstraint(Sketcher.Constraint("Horizontal", 13, 2, 16, 2))
sketch2.addConstraint(Sketcher.Constraint("Horizontal", 2, 2, 18, 2))
sketch2.addConstraint(Sketcher.Constraint("Horizontal", 20, 2, 21, 2))
sketch2.addConstraint(Sketcher.Constraint("Horizontal", 0, 2, 22, 2))
sketch2.addConstraint(Sketcher.Constraint("Horizontal", 22, 2, 25, 2))
sketch2.addConstraint(Sketcher.Constraint("Horizontal", 24, 1, 26, 2))
sketch2.addConstraint(Sketcher.Constraint("Horizontal", 27, 2, 29, 2))
sketch2.addConstraint(Sketcher.Constraint("Horizontal", 25, 2, 30, 2))
sketch2.addConstraint(Sketcher.Constraint("Horizontal", 32, 1, 33, 2))
sketch2.addConstraint(Sketcher.Constraint("Horizontal", 19, 2, 34, 2))
sketch2.addConstraint(Sketcher.Constraint("Horizontal", 35, 2, 36, 2))
sketch2.addConstraint(Sketcher.Constraint("Horizontal", 34, 2, 37, 2))
sketch2.addConstraint(Sketcher.Constraint("Horizontal", 17, 2, 39, 2))
sketch2.addConstraint(Sketcher.Constraint("Horizontal", 16, 2, 40, 2))
sketch2.addConstraint(Sketcher.Constraint("Horizontal", 41, 2, 42, 2))
sketch2.addConstraint(Sketcher.Constraint("Horizontal", 40, 2, 43, 2))
sketch2.addConstraint(Sketcher.Constraint("Horizontal", 11, 2, 45, 2))
sketch2.addConstraint(Sketcher.Constraint("Horizontal", 44, 2, 47, 1))
sketch2.addConstraint(Sketcher.Constraint("Horizontal", 48, 2, 49, 2))
sketch2.addConstraint(Sketcher.Constraint("Horizontal", 46, 2, 51, 1))
sketch2.addConstraint(Sketcher.Constraint("Horizontal", 38, 2, 53, 2))
sketch2.addConstraint(Sketcher.Constraint("Horizontal", 37, 2, 55, 2))
sketch2.addConstraint(Sketcher.Constraint("Vertical", 59, 3, 60, 3))
sketch2.addConstraint(Sketcher.Constraint("Vertical", 58, 3, 61, 3))
sketch2.addConstraint(Sketcher.Constraint("Vertical", 57, 3, 62, 3))
sketch2.addConstraint(Sketcher.Constraint("Vertical", 56, 3, 63, 3))
sketch2.addConstraint(Sketcher.Constraint("Vertical", 65, 3, 66, 3))
sketch2.addConstraint(Sketcher.Constraint("Vertical", 64, 3, 67, 3))
sketch2.addConstraint(Sketcher.Constraint("Vertical", 3, 1, 4, 2))
sketch2.addConstraint(Sketcher.Constraint("Vertical", 2, 2, 6, 1))
sketch2.addConstraint(Sketcher.Constraint("Vertical", 11, 2, 12, 2))
sketch2.addConstraint(Sketcher.Constraint("Vertical", 17, 2, 18, 2))
sketch2.addConstraint(Sketcher.Constraint("Equal", 50, 0))
sketch2.addConstraint(Sketcher.Constraint("Radius", 1, Q("19 mm")))
sketch2.addConstraint(Sketcher.Constraint("Radius", 3, Q("14 mm")))
sketch2.addConstraint(Sketcher.Constraint("Radius", 14, Q("10.999998 mm")))
sketch2.addConstraint(Sketcher.Constraint("Diameter", 56, Q("3.6 mm")))
sketch2.addConstraint(Sketcher.Constraint("DistanceX", 12, 2, 12, 1, Q("9.397248 mm")))
sketch2.addConstraint(Sketcher.Constraint("DistanceX", 3, 3, -1, 1, Q("22.900172 mm")))
sketch2.addConstraint(Sketcher.Constraint("DistanceX", -1, 1, 28, 3, Q("17.099828 mm")))
sketch2.addConstraint(Sketcher.Constraint("DistanceX", 56, 3, -1, 1, Q("38.900172 mm")))
sketch2.addConstraint(Sketcher.Constraint("DistanceX", -1, 1, 59, 3, Q("33.099828 mm")))
sketch2.addConstraint(Sketcher.Constraint("DistanceX", 64, 3, -1, 1, Q("105.567172 mm")))
sketch2.addConstraint(Sketcher.Constraint("DistanceX", -1, 1, 65, 3, Q("100.372828 mm")))
sketch2.addConstraint(Sketcher.Constraint("DistanceY", -1, 1, 0, 2, Q("68.13067 mm")))
sketch2.addConstraint(Sketcher.Constraint("DistanceY", -1, 1, 56, 3, Q("65.189973 mm")))
sketch2.addConstraint(Sketcher.Constraint("DistanceX", 57, 3, -1, 1, Q("6.900172 mm")))
sketch2.addConstraint(Sketcher.Constraint("DistanceX", -1, 1, 58, 3, Q("1.099828 mm")))
sketch2.addConstraint(Sketcher.Constraint("DistanceY", -1, 1, 60, 3, Q("33.189973 mm")))
sketch2.addConstraint(Sketcher.Constraint("DistanceY", 64, 3, -1, 1, Q("58.937027 mm")))
sketch2.addConstraint(Sketcher.Constraint("DistanceY", -1, 1, 66, 3, Q("112.491973 mm")))
sketch2.setExpression("Constraints[188]", "Params.sketch2_radius")
sketch2.setExpression("Constraints[189]", "Params.sketch2_radius2")
sketch2.setExpression("Constraints[190]", "Params.sketch2_radius3")
sketch2.setExpression("Constraints[191]", "Params.sketch2_diameter")
pocket1 = body.newObject("PartDesign::Pocket", "Pocket")
pocket1.Profile = sketch2
pocket1.setExpression("Length", "Params.pocket1_length")
doc.recompute()

fillet = body.newObject("PartDesign::Fillet", "Fillet")
fillet.Base = (pocket1, edges_at(pocket1, [
    (-112.367, 119.292, 1.5),
    (-112.367, -65.737, 1.5),
    (107.173, -65.737, 1.5),
    (107.173, 119.292, 1.5),
]))
fillet.setExpression("Radius", "Params.fillet_radius")

doc.recompute()
